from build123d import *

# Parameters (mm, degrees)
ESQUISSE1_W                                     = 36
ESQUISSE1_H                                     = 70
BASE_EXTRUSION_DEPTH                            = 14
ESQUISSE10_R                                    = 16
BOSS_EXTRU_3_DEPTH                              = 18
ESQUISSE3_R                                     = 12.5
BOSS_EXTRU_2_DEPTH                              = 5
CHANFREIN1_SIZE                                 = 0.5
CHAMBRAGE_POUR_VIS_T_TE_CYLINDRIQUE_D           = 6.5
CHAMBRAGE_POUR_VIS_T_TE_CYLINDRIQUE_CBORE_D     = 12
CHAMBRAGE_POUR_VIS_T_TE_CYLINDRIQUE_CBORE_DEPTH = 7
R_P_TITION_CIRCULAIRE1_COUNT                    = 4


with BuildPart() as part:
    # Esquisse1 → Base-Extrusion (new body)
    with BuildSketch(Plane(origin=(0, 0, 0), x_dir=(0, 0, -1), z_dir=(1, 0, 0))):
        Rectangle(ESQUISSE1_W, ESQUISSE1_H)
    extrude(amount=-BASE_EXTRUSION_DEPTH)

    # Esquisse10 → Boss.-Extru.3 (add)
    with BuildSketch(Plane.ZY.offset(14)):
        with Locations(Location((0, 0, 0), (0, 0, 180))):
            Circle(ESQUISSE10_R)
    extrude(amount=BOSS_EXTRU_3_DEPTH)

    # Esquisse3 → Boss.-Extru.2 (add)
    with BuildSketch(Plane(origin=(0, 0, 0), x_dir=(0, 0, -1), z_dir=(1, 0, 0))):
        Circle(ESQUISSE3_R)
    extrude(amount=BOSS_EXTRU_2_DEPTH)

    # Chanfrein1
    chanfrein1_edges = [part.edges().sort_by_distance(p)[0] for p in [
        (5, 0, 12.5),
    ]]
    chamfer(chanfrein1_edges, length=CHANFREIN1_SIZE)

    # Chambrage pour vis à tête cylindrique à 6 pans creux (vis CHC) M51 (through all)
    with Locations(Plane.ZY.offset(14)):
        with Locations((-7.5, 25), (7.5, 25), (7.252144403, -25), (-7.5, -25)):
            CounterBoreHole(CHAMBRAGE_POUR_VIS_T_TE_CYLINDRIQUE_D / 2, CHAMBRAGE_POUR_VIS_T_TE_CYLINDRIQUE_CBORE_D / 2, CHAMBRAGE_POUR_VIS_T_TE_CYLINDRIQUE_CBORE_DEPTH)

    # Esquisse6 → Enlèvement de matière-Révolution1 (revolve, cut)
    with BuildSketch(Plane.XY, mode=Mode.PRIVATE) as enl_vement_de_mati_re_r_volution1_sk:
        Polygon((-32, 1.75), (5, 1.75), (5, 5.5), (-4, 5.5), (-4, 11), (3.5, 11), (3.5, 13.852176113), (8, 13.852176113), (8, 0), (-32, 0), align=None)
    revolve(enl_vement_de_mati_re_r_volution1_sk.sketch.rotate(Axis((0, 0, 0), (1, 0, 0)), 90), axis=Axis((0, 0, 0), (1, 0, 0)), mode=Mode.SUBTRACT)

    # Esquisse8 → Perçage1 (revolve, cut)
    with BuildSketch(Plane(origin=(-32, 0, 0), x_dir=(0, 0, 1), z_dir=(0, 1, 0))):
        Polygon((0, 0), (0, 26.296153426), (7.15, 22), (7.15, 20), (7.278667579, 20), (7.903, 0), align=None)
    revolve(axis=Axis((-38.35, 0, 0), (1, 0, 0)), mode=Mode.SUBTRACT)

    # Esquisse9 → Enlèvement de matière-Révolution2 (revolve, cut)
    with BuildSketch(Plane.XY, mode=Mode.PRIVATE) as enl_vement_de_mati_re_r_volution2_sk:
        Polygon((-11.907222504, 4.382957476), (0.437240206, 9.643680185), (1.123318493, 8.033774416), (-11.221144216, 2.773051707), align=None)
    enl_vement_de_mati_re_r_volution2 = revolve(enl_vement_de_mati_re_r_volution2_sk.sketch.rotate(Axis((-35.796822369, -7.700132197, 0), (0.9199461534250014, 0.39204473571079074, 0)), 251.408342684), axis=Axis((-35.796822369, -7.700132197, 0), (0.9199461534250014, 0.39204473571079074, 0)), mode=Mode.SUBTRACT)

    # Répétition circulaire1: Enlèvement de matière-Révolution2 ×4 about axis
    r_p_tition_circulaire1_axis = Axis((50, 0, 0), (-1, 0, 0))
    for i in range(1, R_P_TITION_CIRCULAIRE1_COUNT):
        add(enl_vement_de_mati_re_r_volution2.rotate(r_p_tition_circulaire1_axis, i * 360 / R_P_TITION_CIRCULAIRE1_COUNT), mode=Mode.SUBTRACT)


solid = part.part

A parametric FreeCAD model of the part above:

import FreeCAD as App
import Part
import Sketcher
Q = App.Units.Quantity


def edges_at(feature, points):
    """Names of the edges that pass closest to the given points."""
    edges = feature.Shape.Edges
    near = lambda p: min(range(len(edges)), key=lambda i: edges[i].distToShape(Part.Vertex(*p))[0])
    return sorted({f"Edge{near(p) + 1}" for p in points})


def add_polygon(sketch, points):
    """Adds a closed chain of lines whose ends are joined by coincident constraints."""
    first, n = sketch.GeometryCount, len(points)
    for a, b in zip(points, points[1:] + points[:1]):
        sketch.addGeometry(Part.LineSegment(App.Vector(*a, 0), App.Vector(*b, 0)), False)
    for i in range(n):
        sketch.addConstraint(Sketcher.Constraint("Coincident", first + i, 2, first + (i + 1) % n, 1))

doc = App.newDocument("Part")
params = doc.addObject("Spreadsheet::Sheet", "Params")
for row, (alias, value) in enumerate([
    ("sketch1_width", "70 mm"),
    ("sketch1_height", "36 mm"),
    ("pad1_length", "14 mm"),
    ("sketch2_diameter", "32 mm"),
    ("pad2_length", "18 mm"),
    ("sketch3_diameter", "25 mm"),
    ("pad3_length", "5 mm"),
    ("chamfer_size", "0.5 mm"),
    ("sketch4_diameter", "6.5 mm"),
    ("hole_diameter", "6.5 mm"),
    ("hole_cbore_diameter", "12 mm"),
    ("hole_cbore_depth", "7 mm"),
    ("sketch5_width", "37 mm"),
    ("sketch5_width2", "40 mm"),
    ("sketch5_width3", "9 mm"),
    ("sketch5_width4", "4.5 mm"),
    ("sketch5_height", "5.5 mm"),
    ("groove_angle", "360 deg"),
    ("sketch6_width", "2 mm"),
    ("groove2_angle", "360 deg"),
    ("sketch7_length", "1.75 mm"),
    ("groove3_angle", "360 deg"),
], start=1):
    params.set(f"A{row}", alias)
    params.set(f"B{row}", "=" + value)
    params.setAlias(f"B{row}", alias)

body = doc.addObject("PartDesign::Body", "Body")

# Sketch on YZ plane
sketch1 = body.newObject("Sketcher::SketchObject", "Sketch")
sketch1.AttachmentSupport = (doc.getObject("YZ_Plane"), [""])
sketch1.MapMode = "FlatFace"
add_polygon(sketch1, [(35, 18), (-35, 18), (-35, -18), (35, -18)])  # lines 0-3
sketch1.addConstraint([
    Sketcher.Constraint("Horizontal", 0),
    Sketcher.Constraint("Vertical", 1),
    Sketcher.Constraint("Horizontal", 2),
    Sketcher.Constraint("Vertical", 3),
    Sketcher.Constraint("Symmetric", 0, 2, 2, 2, -1, 1),
    Sketcher.Constraint("DistanceX", 0, 2, 0, 1, 70.0),
    Sketcher.Constraint("DistanceY", 1, 2, 1, 1, 36.0),
])
sketch1.setExpression("Constraints[9]", "Params.sketch1_width")
sketch1.setExpression("Constraints[10]", "Params.sketch1_height")
pad1 = body.newObject("PartDesign::Pad", "Pad")
pad1.Profile = sketch1
pad1.setExpression("Length", "Params.pad1_length")
pad1.Reversed = True

# Sketch on YZ plane
sketch2 = body.newObject("Sketcher::SketchObject", "Sketch001")
sketch2.AttachmentSupport = (doc.getObject("YZ_Plane"), [""])
sketch2.MapMode = "FlatFace"
sketch2.AttachmentOffset = App.Placement(App.Vector(0, 0, -14), App.Rotation())
sketch2.addGeometry(Part.Circle(App.Vector(0, 0, 0), App.Vector(0, 0, 1), 16), False)
sketch2.addConstraint([
    Sketcher.Constraint("Coincident", 0, 3, -1, 1),
    Sketcher.Constraint("Diameter", 0, 32.0),
])
sketch2.setExpression("Constraints[1]", "Params.sketch2_diameter")
pad2 = body.newObject("PartDesign::Pad", "Pad001")
pad2.Profile = sketch2
pad2.setExpression("Length", "Params.pad2_length")
pad2.Reversed = True

# Sketch on YZ plane
sketch3 = body.newObject("Sketcher::SketchObject", "Sketch002")
sketch3.AttachmentSupport = (doc.getObject("YZ_Plane"), [""])
sketch3.MapMode = "FlatFace"
sketch3.addGeometry(Part.Circle(App.Vector(0, 0, 0), App.Vector(0, 0, 1), 12), False)
sketch3.addConstraint([
    Sketcher.Constraint("Coincident", 0, 3, -1, 1),
    Sketcher.Constraint("Diameter", 0, 25.0),
])
sketch3.setExpression("Constraints[1]", "Params.sketch3_diameter")
pad3 = body.newObject("PartDesign::Pad", "Pad002")
pad3.Profile = sketch3
pad3.setExpression("Length", "Params.pad3_length")
doc.recompute()

chamfer = body.newObject("PartDesign::Chamfer", "Chamfer")
chamfer.Base = (pad3, edges_at(pad3, [(5, 0, 12.5)]))
chamfer.setExpression("Size", "Params.chamfer_size")

# Sketch on YZ plane
sketch4 = body.newObject("Sketcher::SketchObject", "Sketch003")
sketch4.AttachmentSupport = (doc.getObject("YZ_Plane"), [""])
sketch4.MapMode = "FlatFace"
sketch4.AttachmentOffset = App.Placement(App.Vector(0, 0, -14), App.Rotation())
sketch4.addGeometry([
    Part.Circle(App.Vector(25, -7.5, 0), App.Vector(0, 0, 1), 3.2),
    Part.Circle(App.Vector(25, 7.5, 0), App.Vector(0, 0, 1), 3.2),
    Part.Circle(App.Vector(-25, 7.3, 0), App.Vector(0, 0, 1), 3.2),
    Part.Circle(App.Vector(-25, -7.5, 0), App.Vector(0, 0, 1), 3.2),
], False)
sketch4.addConstraint([
    Sketcher.Constraint("Equal", 0, 1),
    Sketcher.Constraint("Equal", 1, 2),
    Sketcher.Constraint("Equal", 2, 3),
    Sketcher.Constraint("Symmetric", 1, 3, 3, 3, -1, 1),
    Sketcher.Constraint("Symmetric", 0, 3, 3, 3, -2),
    Sketcher.Constraint("Vertical", 2, 3, 3, 3),
    Sketcher.Constraint("Diameter", 0, 6.5),
    Sketcher.Constraint("DistanceX", -1, 1, 0, 3, 25.0),
    Sketcher.Constraint("DistanceY", 0, 3, 1, 3, 15.0),
    Sketcher.Constraint("DistanceY", -1, 1, 2, 3, 7.252144),
])
sketch4.setExpression("Constraints[6]", "Params.sketch4_diameter")
doc.recompute()
hole = body.newObject("PartDesign::Hole", "Hole")
hole.Profile = sketch4
hole.ThreadType = "None"
hole.setExpression("Diameter", "Params.hole_diameter")
hole.DepthType = "ThroughAll"
hole.HoleCutType = "Counterbore"
hole.setExpression("HoleCutDiameter", "Params.hole_cbore_diameter")
hole.setExpression("HoleCutDepth", "Params.hole_cbore_depth")
hole.Reversed = True

# Sketch on XY plane
sketch5 = body.newObject("Sketcher::SketchObject", "Sketch004")
sketch5.AttachmentSupport = (doc.getObject("XY_Plane"), [""])
sketch5.MapMode = "FlatFace"
add_polygon(sketch5, [(5, 1.8), (-32, 1.8), (-32, 0), (8, 0), (8, 13.9), (3.5, 13.9), (3.5, 11), (-4, 11), (-4, 5.5), (5, 5.5)])  # lines 0-9
sketch5.addConstraint([
    Sketcher.Constraint("Horizontal", 0),
    Sketcher.Constraint("Vertical", 1),
    Sketcher.Constraint("Horizontal", 2),
    Sketcher.Constraint("Vertical", 3),
    Sketcher.Constraint("Horizontal", 4),
    Sketcher.Constraint("Vertical", 5),
    Sketcher.Constraint("Horizontal", 6),
    Sketcher.Constraint("Vertical", 7),
    Sketcher.Constraint("Horizontal", 8),
    Sketcher.Constraint("Vertical", 9),
    Sketcher.Constraint("PointOnObject", 1, 2, -1),
    Sketcher.Constraint("DistanceX", 0, 2, 0, 1, 37.0),
    Sketcher.Constraint("DistanceX", 2, 1, 2, 2, 40.0),
    Sketcher.Constraint("DistanceX", 8, 1, 8, 2, 9.0),
    Sketcher.Constraint("DistanceX", 4, 2, 4, 1, 4.5),
    Sketcher.Constraint("DistanceY", 7, 2, 7, 1, 5.5),
    Sketcher.Constraint("DistanceX", 0, 2, -1, 1, 32.0),
    Sketcher.Constraint("DistanceY", -1, 1, 5, 2, 11.0),
    Sketcher.Constraint("DistanceY", 1, 2, 1, 1, 1.75),
    Sketcher.Constraint("DistanceY", 3, 1, 3, 2, 13.852176),
])
sketch5.setExpression("Constraints[21]", "Params.sketch5_width")
sketch5.setExpression("Constraints[22]", "Params.sketch5_width2")
sketch5.setExpression("Constraints[23]", "Params.sketch5_width3")
sketch5.setExpression("Constraints[24]", "Params.sketch5_width4")
sketch5.setExpression("Constraints[25]", "Params.sketch5_height")
groove = body.newObject("PartDesign::Groove", "Groove")
groove.Profile = sketch5
groove.ReferenceAxis = (sketch5, ["H_Axis"])
groove.setExpression("Angle", "Params.groove_angle")

# Sketch on XZ plane
sketch6 = body.newObject("Sketcher::SketchObject", "Sketch005")
sketch6.AttachmentSupport = (doc.getObject("XZ_Plane"), [""])
sketch6.MapMode = "FlatFace"
add_polygon(sketch6, [(-5.7, 0), (-32, 0), (-32, 7.9), (-12, 7.28), (-12, 7.15), (-10, 7.15)])  # lines 0-5
sketch6.addConstraint([
    Sketcher.Constraint("Horizontal", 0),
    Sketcher.Constraint("Vertical", 1),
    Sketcher.Constraint("Vertical", 3),
    Sketcher.Constraint("Horizontal", 4),
    Sketcher.Constraint("PointOnObject", 0, 2, -1),
    Sketcher.Constraint("DistanceX", 4, 1, 4, 2, 2.0),
    Sketcher.Constraint("Angle", 5, Q("-59 deg")),
    Sketcher.Constraint("DistanceX", 0, 2, -1, 1, 32.0),
    Sketcher.Constraint("DistanceX", 2, 2, -1, 1, 12.0),
    Sketcher.Constraint("DistanceY", 1, 1, 1, 2, 7.903),
    Sketcher.Constraint("DistanceY", -1, 1, 3, 2, 7.15),
    Sketcher.Constraint("DistanceY", 3, 2, 3, 1, 0.128668),
])
sketch6.setExpression("Constraints[11]", "Params.sketch6_width")
groove2 = body.newObject("PartDesign::Groove", "Groove001")
groove2.Profile = sketch6
groove2.ReferenceAxis = (sketch6, ["H_Axis"])
groove2.setExpression("Angle", "Params.groove2_angle")

# Sketch on XY plane
sketch7 = body.newObject("Sketcher::SketchObject", "Sketch006")
sketch7.AttachmentSupport = (doc.getObject("XY_Plane"), [""])
sketch7.MapMode = "FlatFace"
add_polygon(sketch7, [(0.4, 9.6), (-11.9, 4.4), (-11.2, 2.8), (1.1, 8)])  # lines 0-3
sketch7.addGeometry(Part.LineSegment(App.Vector(-11.2, 2.8, 0), App.Vector(1.1, 8, 0)), True)  # axis
sketch7.addConstraint([
    Sketcher.Constraint("Coincident", 4, 1, 1, 2),
    Sketcher.Constraint("Coincident", 4, 2, 2, 2),
    Sketcher.Constraint("Perpendicular", 0, 1),
    Sketcher.Constraint("Perpendicular", 1, 2),
    Sketcher.Constraint("Perpendicular", 2, 3),
    Sketcher.Constraint("Distance", 1, 1.75),
    Sketcher.Constraint("Distance", 0, 13.41868),
    Sketcher.Constraint("DistanceY", -1, 1, 1, 2, 2.773052),
    Sketcher.Constraint("DistanceX", -1, 1, 2, 2, 1.123318),
    Sketcher.Constraint("DistanceX", -1, 1, 3, 2, 0.43724),
])
sketch7.setExpression("Constraints[9]", "Params.sketch7_length")
groove3 = body.newObject("PartDesign::Groove", "Groove002")
groove3.Profile = sketch7
groove3.ReferenceAxis = (sketch7, ["Axis0"])
groove3.setExpression("Angle", "Params.groove3_angle")
doc.recompute()

polarpattern = body.newObject("PartDesign::PolarPattern", "PolarPattern")
polarpattern.Originals = [groove3]
polarpattern.Axis = (doc.getObject("X_Axis"), [""])
polarpattern.Angle = 360
polarpattern.Occurrences = 4
body.Tip = polarpattern

doc.recompute()
